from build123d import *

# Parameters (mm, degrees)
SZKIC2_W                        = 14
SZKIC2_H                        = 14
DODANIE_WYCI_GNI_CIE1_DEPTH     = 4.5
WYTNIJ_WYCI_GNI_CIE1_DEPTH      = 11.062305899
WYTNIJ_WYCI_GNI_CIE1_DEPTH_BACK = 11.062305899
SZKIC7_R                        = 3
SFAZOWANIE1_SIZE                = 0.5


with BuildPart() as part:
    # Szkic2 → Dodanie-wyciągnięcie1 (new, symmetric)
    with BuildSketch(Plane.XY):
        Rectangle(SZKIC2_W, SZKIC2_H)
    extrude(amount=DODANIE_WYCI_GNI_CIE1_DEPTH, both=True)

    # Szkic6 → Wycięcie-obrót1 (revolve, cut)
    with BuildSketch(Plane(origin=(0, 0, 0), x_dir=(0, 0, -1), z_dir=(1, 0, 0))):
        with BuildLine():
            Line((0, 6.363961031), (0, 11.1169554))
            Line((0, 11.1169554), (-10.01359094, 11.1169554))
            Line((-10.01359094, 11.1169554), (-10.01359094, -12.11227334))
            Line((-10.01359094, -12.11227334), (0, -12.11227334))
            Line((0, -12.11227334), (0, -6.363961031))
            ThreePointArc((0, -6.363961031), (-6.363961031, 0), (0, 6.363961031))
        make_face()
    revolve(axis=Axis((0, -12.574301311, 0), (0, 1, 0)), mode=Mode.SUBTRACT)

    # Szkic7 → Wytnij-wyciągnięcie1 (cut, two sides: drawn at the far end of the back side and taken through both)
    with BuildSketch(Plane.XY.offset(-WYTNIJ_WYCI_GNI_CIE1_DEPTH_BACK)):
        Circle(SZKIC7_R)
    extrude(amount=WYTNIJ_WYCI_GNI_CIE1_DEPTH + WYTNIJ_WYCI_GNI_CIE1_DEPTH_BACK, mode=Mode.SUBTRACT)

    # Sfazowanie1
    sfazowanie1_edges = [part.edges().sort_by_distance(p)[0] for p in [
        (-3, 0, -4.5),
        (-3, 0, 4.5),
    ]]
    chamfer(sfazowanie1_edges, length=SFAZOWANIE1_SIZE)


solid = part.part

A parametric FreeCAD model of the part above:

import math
import FreeCAD as App
import Part
import Sketcher

V = App.Vector
Q = App.Units.Quantity


def edges_at(feature, points):
    """Names of the edges that pass closest to the given points."""
    edges = feature.Shape.Edges
    near = lambda p: min(range(len(edges)), key=lambda i: edges[i].distToShape(Part.Vertex(*p))[0])
    return sorted({f"Edge{near(p) + 1}" for p in points})

doc = App.newDocument("Part")
body = doc.addObject("PartDesign::Body", "Body")

# Sketch on XY plane
sketch1 = doc.addObject("Sketcher::SketchObject", "Sketch")
body.addObject(sketch1)
sketch1.AttachmentSupport = (doc.XY_Plane, [""])
sketch1.MapMode = "FlatFace"
sketch1.addGeometry([
    Part.LineSegment(V(-7, 7, 0), V(-7, -7, 0)),
    Part.LineSegment(V(-7, -7, 0), V(7, -7, 0)),
    Part.LineSegment(V(7, -7, 0), V(7, 7, 0)),
    Part.LineSegment(V(7, 7, 0), V(-7, 7, 0)),
], False)
sketch1.addConstraint([
    Sketcher.Constraint("Coincident", 0, 2, 1, 1),
    Sketcher.Constraint("Coincident", 1, 2, 2, 1),
    Sketcher.Constraint("Coincident", 2, 2, 3, 1),
    Sketcher.Constraint("Coincident", 3, 2, 0, 1),
    Sketcher.Constraint("Vertical", 0),
    Sketcher.Constraint("Horizontal", 1),
    Sketcher.Constraint("Vertical", 2),
    Sketcher.Constraint("Horizontal", 3),
    Sketcher.Constraint("Symmetric", 0, 2, 2, 2, -1, 1),
    Sketcher.Constraint("Equal", 3, 0),
    Sketcher.Constraint("DistanceX", 1, 1, 1, 2, Q("14 mm")),
])
pad1 = doc.addObject("PartDesign::Pad", "Pad")
body.addObject(pad1)
pad1.Profile = sketch1
pad1.Length = 9
pad1.Midplane = True

# Sketch on YZ plane
sketch2 = doc.addObject("Sketcher::SketchObject", "Sketch001")
body.addObject(sketch2)
sketch2.AttachmentSupport = (doc.YZ_Plane, [""])
sketch2.MapMode = "FlatFace"
sketch2.addGeometry([
    Part.LineSegment(V(6.4, 0, 0), V(11.1, 0, 0)),  # 0
    Part.LineSegment(V(11.1, 0, 0), V(11.1, 10, 0)),  # 1
    Part.LineSegment(V(11.1, 10, 0), V(-12.1, 10, 0)),  # 2
    Part.LineSegment(V(-12.1, 10, 0), V(-12.1, 0, 0)),  # 3
    Part.LineSegment(V(-12.1, 0, 0), V(-6.4, 0, 0)),  # 4
    Part.ArcOfCircle(Part.Circle(V(0, 0, 0), V(0, 0, 1), 6.4), math.radians(0), math.radians(180)),  # 5
], False)
sketch2.addConstraint([
    Sketcher.Constraint("Coincident", 0, 2, 1, 1),
    Sketcher.Constraint("Coincident", 1, 2, 2, 1),
    Sketcher.Constraint("Coincident", 2, 2, 3, 1),
    Sketcher.Constraint("Coincident", 3, 2, 4, 1),
    Sketcher.Constraint("Coincident", 4, 2, 5, 2),
    Sketcher.Constraint("Coincident", 5, 1, 0, 1),
    Sketcher.Constraint("Horizontal", 0),
    Sketcher.Constraint("Vertical", 1),
    Sketcher.Constraint("Horizontal", 2),
    Sketcher.Constraint("Vertical", 3),
    Sketcher.Constraint("Horizontal", 4),
    Sketcher.Constraint("Coincident", 5, 3, -1, 1),
    Sketcher.Constraint("PointOnObject", 0, 2, -1),
    Sketcher.Constraint("PointOnObject", 3, 2, -1),
    Sketcher.Constraint("Radius", 5, Q("6.363961 mm")),
    Sketcher.Constraint("DistanceX", 2, 2, 2, 1, Q("23.229229 mm")),
    Sketcher.Constraint("DistanceY", 1, 1, 1, 2, Q("10.013591 mm")),
    Sketcher.Constraint("DistanceX", 0, 1, 0, 2, Q("4.752994 mm")),
])
groove = doc.addObject("PartDesign::Groove", "Groove")
body.addObject(groove)
groove.Profile = sketch2
groove.ReferenceAxis = (sketch2, ["H_Axis"])
groove.Angle = 360

# Sketch on XY plane
sketch3 = doc.addObject("Sketcher::SketchObject", "Sketch002")
body.addObject(sketch3)
sketch3.AttachmentSupport = (doc.XY_Plane, [""])
sketch3.MapMode = "FlatFace"
sketch3.addGeometry(Part.Circle(V(0, 0, 0), V(0, 0, 1), 3), False)
sketch3.addConstraint([
    Sketcher.Constraint("Coincident", 0, 3, -1, 1),
    Sketcher.Constraint("Diameter", 0, Q("6 mm")),
])
pocket1 = doc.addObject("PartDesign::Pocket", "Pocket")
body.addObject(pocket1)
pocket1.Profile = sketch3
pocket1.Type = "ThroughAll"
pocket1.Midplane = True
doc.recompute()

chamfer = doc.addObject("PartDesign::Chamfer", "Chamfer")
body.addObject(chamfer)
chamfer.Base = (pocket1, edges_at(pocket1, [(-3, 0, -4.5), (-3, 0, 4.5)]))
chamfer.Size = 0.5

doc.recompute()
